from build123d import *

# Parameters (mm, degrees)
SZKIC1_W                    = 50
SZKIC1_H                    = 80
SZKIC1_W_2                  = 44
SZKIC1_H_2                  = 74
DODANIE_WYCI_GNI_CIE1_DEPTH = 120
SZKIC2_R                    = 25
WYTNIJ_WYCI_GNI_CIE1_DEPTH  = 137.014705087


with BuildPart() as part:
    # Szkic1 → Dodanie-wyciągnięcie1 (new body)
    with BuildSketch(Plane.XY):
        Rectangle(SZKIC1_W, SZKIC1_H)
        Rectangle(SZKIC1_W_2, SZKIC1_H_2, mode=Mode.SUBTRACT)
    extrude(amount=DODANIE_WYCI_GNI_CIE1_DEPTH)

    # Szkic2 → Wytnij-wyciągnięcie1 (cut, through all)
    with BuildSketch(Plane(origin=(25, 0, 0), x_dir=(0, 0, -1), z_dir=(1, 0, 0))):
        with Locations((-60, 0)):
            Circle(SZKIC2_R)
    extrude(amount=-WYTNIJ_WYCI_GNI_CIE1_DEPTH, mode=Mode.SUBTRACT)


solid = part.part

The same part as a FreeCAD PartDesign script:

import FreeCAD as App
import Part
import Sketcher

V = App.Vector

doc = App.newDocument("Part")
body = doc.addObject("PartDesign::Body", "Body")

# Sketch on XY plane
sketch1 = body.newObject("Sketcher::SketchObject", "Sketch")
sketch1.AttachmentSupport = (doc.getObject("XY_Plane"), [""])
sketch1.MapMode = "FlatFace"
sketch1.addGeometry([
    Part.LineSegment(V(-25, 40, 0), V(-25, -40, 0)),  # 0
    Part.LineSegment(V(-25, -40, 0), V(25, -40, 0)),  # 1
    Part.LineSegment(V(25, -40, 0), V(25, 40, 0)),  # 2
    Part.LineSegment(V(25, 40, 0), V(-25, 40, 0)),  # 3
    Part.LineSegment(V(22, -37, 0), V(-22, -37, 0)),  # 4
    Part.LineSegment(V(-22, -37, 0), V(-22, 37, 0)),  # 5
    Part.LineSegment(V(-22, 37, 0), V(22, 37, 0)),  # 6
    Part.LineSegment(V(22, 37, 0), V(22, -37, 0)),  # 7
], False)
sketch1.addConstraint([
    Sketcher.Constraint("Coincident", 0, 2, 1, 1),
    Sketcher.Constraint("Coincident", 1, 2, 2, 1),
    Sketcher.Constraint("Coincident", 2, 2, 3, 1),
    Sketcher.Constraint("Coincident", 3, 2, 0, 1),
    Sketcher.Constraint("Coincident", 4, 2, 5, 1),
    Sketcher.Constraint("Coincident", 5, 2, 6, 1),
    Sketcher.Constraint("Coincident", 6, 2, 7, 1),
    Sketcher.Constraint("Coincident", 7, 2, 4, 1),
    Sketcher.Constraint("Vertical", 0),
    Sketcher.Constraint("Horizontal", 1),
    Sketcher.Constraint("Vertical", 2),
    Sketcher.Constraint("Horizontal", 3),
    Sketcher.Constraint("Horizontal", 4),
    Sketcher.Constraint("Vertical", 5),
    Sketcher.Constraint("Horizontal", 6),
    Sketcher.Constraint("Vertical", 7),
    Sketcher.Constraint("Symmetric", 0, 2, 2, 2, -1, 1),
    Sketcher.Constraint("Symmetric", 4, 2, 6, 2, -1, 1),
    Sketcher.Constraint("DistanceX", 1, 1, 1, 2, 50.0),
    Sketcher.Constraint("DistanceX", 4, 2, 4, 1, 44.0),
    Sketcher.Constraint("DistanceY", 0, 2, 0, 1, 80.0),
    Sketcher.Constraint("DistanceY", 5, 1, 5, 2, 74.0),
])
pad1 = body.newObject("PartDesign::Pad", "Pad")
pad1.Profile = sketch1
pad1.Length = 120

# Sketch on YZ plane
sketch2 = body.newObject("Sketcher::SketchObject", "Sketch001")
sketch2.AttachmentSupport = (doc.getObject("YZ_Plane"), [""])
sketch2.MapMode = "FlatFace"
sketch2.AttachmentOffset = App.Placement(V(0, 0, 25), App.Rotation())
sketch2.addGeometry(Part.Circle(V(0, 60, 0), V(0, 0, 1), 25), False)
sketch2.addConstraint([
    Sketcher.Constraint("PointOnObject", 0, 3, -2),
    Sketcher.Constraint("Diameter", 0, 50.0),
    Sketcher.Constraint("DistanceY", -1, 1, 0, 3, 60.0),
])
pocket1 = body.newObject("PartDesign::Pocket", "Pocket")
pocket1.Profile = sketch2
pocket1.Type = "ThroughAll"

doc.recompute()
